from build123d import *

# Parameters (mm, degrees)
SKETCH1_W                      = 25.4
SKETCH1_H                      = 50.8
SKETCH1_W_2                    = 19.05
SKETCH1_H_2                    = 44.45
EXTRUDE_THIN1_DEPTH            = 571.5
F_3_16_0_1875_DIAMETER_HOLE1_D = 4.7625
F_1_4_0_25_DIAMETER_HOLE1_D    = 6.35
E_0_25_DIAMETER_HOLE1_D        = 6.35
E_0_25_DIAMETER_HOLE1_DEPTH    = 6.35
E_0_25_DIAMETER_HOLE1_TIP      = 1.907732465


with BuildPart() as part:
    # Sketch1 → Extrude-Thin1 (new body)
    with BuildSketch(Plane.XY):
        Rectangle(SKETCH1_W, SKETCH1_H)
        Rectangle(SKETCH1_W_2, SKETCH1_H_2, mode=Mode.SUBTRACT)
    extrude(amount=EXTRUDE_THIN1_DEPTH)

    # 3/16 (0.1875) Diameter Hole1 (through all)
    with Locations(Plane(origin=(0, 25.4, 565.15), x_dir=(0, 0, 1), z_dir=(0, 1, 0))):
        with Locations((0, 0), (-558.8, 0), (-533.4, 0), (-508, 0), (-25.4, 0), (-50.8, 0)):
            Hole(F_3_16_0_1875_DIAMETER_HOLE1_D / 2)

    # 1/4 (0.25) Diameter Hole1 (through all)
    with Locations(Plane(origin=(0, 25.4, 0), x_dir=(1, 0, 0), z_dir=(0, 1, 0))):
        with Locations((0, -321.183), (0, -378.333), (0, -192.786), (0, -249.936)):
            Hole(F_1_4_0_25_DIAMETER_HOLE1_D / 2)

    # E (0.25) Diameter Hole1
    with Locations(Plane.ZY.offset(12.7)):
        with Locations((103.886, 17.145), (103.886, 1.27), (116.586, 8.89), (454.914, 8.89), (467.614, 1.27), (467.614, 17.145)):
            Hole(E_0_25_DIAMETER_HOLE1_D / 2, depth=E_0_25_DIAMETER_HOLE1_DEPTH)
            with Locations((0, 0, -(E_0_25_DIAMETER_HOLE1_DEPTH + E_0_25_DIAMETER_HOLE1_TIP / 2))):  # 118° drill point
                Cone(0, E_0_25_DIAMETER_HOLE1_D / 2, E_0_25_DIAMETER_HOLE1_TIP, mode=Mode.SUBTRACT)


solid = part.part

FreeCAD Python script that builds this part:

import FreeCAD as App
import Part
import Sketcher
Q = App.Units.Quantity


def add_polygon(sketch, points):
    """Adds a closed chain of lines whose ends are joined by coincident constraints."""
    first, n = sketch.GeometryCount, len(points)
    for a, b in zip(points, points[1:] + points[:1]):
        sketch.addGeometry(Part.LineSegment(App.Vector(*a, 0), App.Vector(*b, 0)), False)
    for i in range(n):
        sketch.addConstraint(Sketcher.Constraint("Coincident", first + i, 2, first + (i + 1) % n, 1))

doc = App.newDocument("Part")
params = doc.addObject("Spreadsheet::Sheet", "Params")
for row, (alias, value) in enumerate([
    ("sketch1_width", "1 in"),
    ("sketch1_height", "2 in"),
    ("sketch1_width2", "0.75 in"),
    ("sketch1_height2", "1.75 in"),
    ("pad1_length", "22.5 in"),
    ("sketch2_diameter", "0.1875 in"),
    ("hole_diameter", "0.1875 in"),
    ("sketch3_diameter", "0.25 in"),
    ("hole2_diameter", "0.25 in"),
    ("sketch4_diameter", "0.25 in"),
    ("hole3_diameter", "0.25 in"),
    ("hole3_depth", "0.25 in"),
], start=1):
    params.set(f"A{row}", alias)
    params.set(f"B{row}", "=" + value)
    params.setAlias(f"B{row}", alias)

body = doc.addObject("PartDesign::Body", "Body")

# Sketch on XY plane
sketch1 = doc.addObject("Sketcher::SketchObject", "Sketch")
body.addObject(sketch1)
sketch1.AttachmentSupport = (doc.XY_Plane, [""])
sketch1.MapMode = "FlatFace"
add_polygon(sketch1, [(-13, 25), (-13, -25), (13, -25), (13, 25)])  # lines 0-3
add_polygon(sketch1, [(10, -22), (-10, -22), (-10, 22), (10, 22)])  # lines 4-7
sketch1.addConstraint(Sketcher.Constraint("Vertical", 0))
sketch1.addConstraint(Sketcher.Constraint("Horizontal", 1))
sketch1.addConstraint(Sketcher.Constraint("Vertical", 2))
sketch1.addConstraint(Sketcher.Constraint("Horizontal", 3))
sketch1.addConstraint(Sketcher.Constraint("Horizontal", 4))
sketch1.addConstraint(Sketcher.Constraint("Vertical", 5))
sketch1.addConstraint(Sketcher.Constraint("Horizontal", 6))
sketch1.addConstraint(Sketcher.Constraint("Vertical", 7))
sketch1.addConstraint(Sketcher.Constraint("Symmetric", 0, 2, 2, 2, -1, 1))
sketch1.addConstraint(Sketcher.Constraint("Symmetric", 4, 2, 6, 2, -1, 1))
sketch1.addConstraint(Sketcher.Constraint("DistanceX", 1, 1, 1, 2, Q("1 in")))
sketch1.addConstraint(Sketcher.Constraint("DistanceY", 0, 2, 0, 1, Q("2 in")))
sketch1.addConstraint(Sketcher.Constraint("DistanceX", 4, 2, 4, 1, Q("0.75 in")))
sketch1.addConstraint(Sketcher.Constraint("DistanceY", 5, 1, 5, 2, Q("1.75 in")))
sketch1.setExpression("Constraints[18]", "Params.sketch1_width")
sketch1.setExpression("Constraints[19]", "Params.sketch1_height")
sketch1.setExpression("Constraints[20]", "Params.sketch1_width2")
sketch1.setExpression("Constraints[21]", "Params.sketch1_height2")
pad1 = doc.addObject("PartDesign::Pad", "Pad")
body.addObject(pad1)
pad1.Profile = sketch1
pad1.setExpression("Length", "Params.pad1_length")

# Sketch on XZ plane
sketch2 = doc.addObject("Sketcher::SketchObject", "Sketch001")
body.addObject(sketch2)
sketch2.AttachmentSupport = (doc.XZ_Plane, [""])
sketch2.MapMode = "FlatFace"
sketch2.AttachmentOffset = App.Placement(App.Vector(0, 0, -1 * 25.4), App.Rotation())
sketch2.addGeometry(Part.Circle(App.Vector(0, 565.1, 0), App.Vector(0, 0, 1), 2.4), False)
sketch2.addGeometry(Part.Circle(App.Vector(0, 6.3, 0), App.Vector(0, 0, 1), 2.4), False)
sketch2.addGeometry(Part.Circle(App.Vector(0, 31.8, 0), App.Vector(0, 0, 1), 2.4), False)
sketch2.addGeometry(Part.Circle(App.Vector(0, 57.1, 0), App.Vector(0, 0, 1), 2.4), False)
sketch2.addGeometry(Part.Circle(App.Vector(0, 539.8, 0), App.Vector(0, 0, 1), 2.4), False)
sketch2.addGeometry(Part.Circle(App.Vector(0, 514.4, 0), App.Vector(0, 0, 1), 2.4), False)
sketch2.addConstraint(Sketcher.Constraint("Equal", 0, 1))
sketch2.addConstraint(Sketcher.Constraint("Equal", 1, 2))
sketch2.addConstraint(Sketcher.Constraint("Equal", 2, 3))
sketch2.addConstraint(Sketcher.Constraint("Equal", 3, 4))
sketch2.addConstraint(Sketcher.Constraint("Equal", 4, 5))
sketch2.addConstraint(Sketcher.Constraint("PointOnObject", 0, 3, -2))
sketch2.addConstraint(Sketcher.Constraint("PointOnObject", 1, 3, -2))
sketch2.addConstraint(Sketcher.Constraint("PointOnObject", 2, 3, -2))
sketch2.addConstraint(Sketcher.Constraint("PointOnObject", 3, 3, -2))
sketch2.addConstraint(Sketcher.Constraint("PointOnObject", 4, 3, -2))
sketch2.addConstraint(Sketcher.Constraint("PointOnObject", 5, 3, -2))
sketch2.addConstraint(Sketcher.Constraint("Diameter", 0, Q("0.1875 in")))
sketch2.addConstraint(Sketcher.Constraint("DistanceY", 1, 3, 0, 3, Q("22 in")))
sketch2.addConstraint(Sketcher.Constraint("DistanceY", 1, 3, 2, 3, Q("1 in")))
sketch2.addConstraint(Sketcher.Constraint("DistanceY", 2, 3, 3, 3, Q("1 in")))
sketch2.addConstraint(Sketcher.Constraint("DistanceY", 4, 3, 0, 3, Q("1 in")))
sketch2.addConstraint(Sketcher.Constraint("DistanceY", 5, 3, 4, 3, Q("1 in")))
sketch2.addConstraint(Sketcher.Constraint("DistanceY", -1, 1, 0, 3, Q("22.25 in")))
sketch2.setExpression("Constraints[11]", "Params.sketch2_diameter")
doc.recompute()
hole = doc.addObject("PartDesign::Hole", "Hole")
body.addObject(hole)
hole.Profile = sketch2
hole.ThreadType = "None"
hole.setExpression("Diameter", "Params.hole_diameter")
hole.DepthType = "ThroughAll"
hole.Reversed = True

# Sketch on XZ plane
sketch3 = doc.addObject("Sketcher::SketchObject", "Sketch002")
body.addObject(sketch3)
sketch3.AttachmentSupport = (doc.XZ_Plane, [""])
sketch3.MapMode = "FlatFace"
sketch3.AttachmentOffset = App.Placement(App.Vector(0, 0, -1 * 25.4), App.Rotation())
sketch3.addGeometry(Part.Circle(App.Vector(0, 321.2, 0), App.Vector(0, 0, 1), 3.2), False)
sketch3.addGeometry(Part.Circle(App.Vector(0, 378.3, 0), App.Vector(0, 0, 1), 3.2), False)
sketch3.addGeometry(Part.Circle(App.Vector(0, 192.8, 0), App.Vector(0, 0, 1), 3.2), False)
sketch3.addGeometry(Part.Circle(App.Vector(0, 249.9, 0), App.Vector(0, 0, 1), 3.2), False)
sketch3.addConstraint(Sketcher.Constraint("Equal", 0, 1))
sketch3.addConstraint(Sketcher.Constraint("Equal", 1, 2))
sketch3.addConstraint(Sketcher.Constraint("Equal", 2, 3))
sketch3.addConstraint(Sketcher.Constraint("PointOnObject", 0, 3, -2))
sketch3.addConstraint(Sketcher.Constraint("PointOnObject", 1, 3, -2))
sketch3.addConstraint(Sketcher.Constraint("PointOnObject", 2, 3, -2))
sketch3.addConstraint(Sketcher.Constraint("PointOnObject", 3, 3, -2))
sketch3.addConstraint(Sketcher.Constraint("Diameter", 0, Q("0.25 in")))
sketch3.addConstraint(Sketcher.Constraint("DistanceY", -1, 1, 2, 3, Q("7.59 in")))
sketch3.addConstraint(Sketcher.Constraint("DistanceY", -1, 1, 3, 3, Q("9.84 in")))
sketch3.addConstraint(Sketcher.Constraint("DistanceY", 0, 3, 1, 3, Q("2.25 in")))
sketch3.addConstraint(Sketcher.Constraint("DistanceY", -1, 1, 0, 3, Q("12.645 in")))
sketch3.setExpression("Constraints[7]", "Params.sketch3_diameter")
doc.recompute()
hole2 = doc.addObject("PartDesign::Hole", "Hole001")
body.addObject(hole2)
hole2.Profile = sketch3
hole2.ThreadType = "None"
hole2.setExpression("Diameter", "Params.hole2_diameter")
hole2.DepthType = "ThroughAll"
hole2.Reversed = True

# Sketch on YZ plane
sketch4 = doc.addObject("Sketcher::SketchObject", "Sketch003")
body.addObject(sketch4)
sketch4.AttachmentSupport = (doc.YZ_Plane, [""])
sketch4.MapMode = "FlatFace"
sketch4.AttachmentOffset = App.Placement(App.Vector(0, 0, -0.5 * 25.4), App.Rotation())
sketch4.addGeometry(Part.Circle(App.Vector(17.1, 103.9, 0), App.Vector(0, 0, 1), 3.2), False)
sketch4.addGeometry(Part.Circle(App.Vector(1.3, 103.9, 0), App.Vector(0, 0, 1), 3.2), False)
sketch4.addGeometry(Part.Circle(App.Vector(8.9, 116.6, 0), App.Vector(0, 0, 1), 3.2), False)
sketch4.addGeometry(Part.Circle(App.Vector(8.9, 454.9, 0), App.Vector(0, 0, 1), 3.2), False)
sketch4.addGeometry(Part.Circle(App.Vector(1.3, 467.6, 0), App.Vector(0, 0, 1), 3.2), False)
sketch4.addGeometry(Part.Circle(App.Vector(17.1, 467.6, 0), App.Vector(0, 0, 1), 3.2), False)
sketch4.addConstraint(Sketcher.Constraint("Equal", 0, 1))
sketch4.addConstraint(Sketcher.Constraint("Equal", 1, 2))
sketch4.addConstraint(Sketcher.Constraint("Equal", 2, 3))
sketch4.addConstraint(Sketcher.Constraint("Equal", 3, 4))
sketch4.addConstraint(Sketcher.Constraint("Equal", 4, 5))
sketch4.addConstraint(Sketcher.Constraint("Horizontal", 0, 3, 1, 3))
sketch4.addConstraint(Sketcher.Constraint("Horizontal", 4, 3, 5, 3))
sketch4.addConstraint(Sketcher.Constraint("Vertical", 2, 3, 3, 3))
sketch4.addConstraint(Sketcher.Constraint("Vertical", 1, 3, 4, 3))
sketch4.addConstraint(Sketcher.Constraint("Vertical", 0, 3, 5, 3))
sketch4.addConstraint(Sketcher.Constraint("Diameter", 0, Q("0.25 in")))
sketch4.addConstraint(Sketcher.Constraint("DistanceX", 1, 3, 2, 3, Q("0.3 in")))
sketch4.addConstraint(Sketcher.Constraint("DistanceY", 1, 3, 2, 3, Q("0.5 in")))
sketch4.addConstraint(Sketcher.Constraint("DistanceY", 3, 3, 4, 3, Q("0.5 in")))
sketch4.addConstraint(Sketcher.Constraint("DistanceY", -1, 1, 0, 3, Q("4.09 in")))
sketch4.addConstraint(Sketcher.Constraint("DistanceX", -1, 1, 1, 3, Q("0.05 in")))
sketch4.addConstraint(Sketcher.Constraint("DistanceY", -1, 1, 3, 3, Q("17.91 in")))
sketch4.addConstraint(Sketcher.Constraint("DistanceX", -1, 1, 0, 3, Q("0.675 in")))
sketch4.setExpression("Constraints[10]", "Params.sketch4_diameter")
doc.recompute()
hole3 = doc.addObject("PartDesign::Hole", "Hole002")
body.addObject(hole3)
hole3.Profile = sketch4
hole3.ThreadType = "None"
hole3.setExpression("Diameter", "Params.hole3_diameter")
hole3.DepthType = "Dimension"
hole3.setExpression("Depth", "Params.hole3_depth")
hole3.DrillPoint = "Angled"
hole3.DrillPointAngle = 118
hole3.Reversed = True

doc.recompute()
